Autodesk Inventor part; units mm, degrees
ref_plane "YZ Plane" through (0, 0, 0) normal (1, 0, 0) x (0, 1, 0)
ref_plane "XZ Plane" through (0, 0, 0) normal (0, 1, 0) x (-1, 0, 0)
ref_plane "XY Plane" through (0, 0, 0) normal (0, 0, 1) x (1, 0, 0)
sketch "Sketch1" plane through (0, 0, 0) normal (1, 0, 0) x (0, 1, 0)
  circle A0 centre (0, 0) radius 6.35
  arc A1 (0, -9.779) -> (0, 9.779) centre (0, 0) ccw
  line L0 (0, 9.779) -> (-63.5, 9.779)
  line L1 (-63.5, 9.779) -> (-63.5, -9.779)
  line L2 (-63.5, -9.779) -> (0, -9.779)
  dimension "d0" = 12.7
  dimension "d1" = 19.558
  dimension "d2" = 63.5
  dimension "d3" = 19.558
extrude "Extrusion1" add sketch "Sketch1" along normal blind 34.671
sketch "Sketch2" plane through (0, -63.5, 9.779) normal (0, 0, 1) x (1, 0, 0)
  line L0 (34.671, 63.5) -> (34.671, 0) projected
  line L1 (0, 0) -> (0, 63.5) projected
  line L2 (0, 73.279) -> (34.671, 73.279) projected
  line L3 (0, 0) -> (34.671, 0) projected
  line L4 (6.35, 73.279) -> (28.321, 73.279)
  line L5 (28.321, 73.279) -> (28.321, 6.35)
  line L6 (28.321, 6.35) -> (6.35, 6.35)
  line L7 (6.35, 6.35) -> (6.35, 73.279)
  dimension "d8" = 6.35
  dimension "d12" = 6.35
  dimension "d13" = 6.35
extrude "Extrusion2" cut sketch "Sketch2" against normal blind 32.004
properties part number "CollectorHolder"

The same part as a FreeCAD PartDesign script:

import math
import FreeCAD as App
import Part
import Sketcher

V = App.Vector
Q = App.Units.Quantity


def add_polygon(sketch, points):
    """Adds a closed chain of lines whose ends are joined by coincident constraints."""
    first, n = sketch.GeometryCount, len(points)
    for a, b in zip(points, points[1:] + points[:1]):
        sketch.addGeometry(Part.LineSegment(App.Vector(*a, 0), App.Vector(*b, 0)), False)
    for i in range(n):
        sketch.addConstraint(Sketcher.Constraint("Coincident", first + i, 2, first + (i + 1) % n, 1))

doc = App.newDocument("Part")
body = doc.addObject("PartDesign::Body", "Body")

sketch1 = body.newObject("Sketcher::SketchObject", "Sketch")
sketch1.AttachmentSupport = (doc.getObject("YZ_Plane"), [""])
sketch1.MapMode = "FlatFace"
sketch1.addGeometry([
    Part.LineSegment(V(-64, -10, 0), V(0, -10, 0)),
    Part.ArcOfCircle(Part.Circle(V(0, 0, 0), V(0, 0, 1), 10), math.radians(-90), math.radians(90)),
    Part.LineSegment(V(0, 10, 0), V(-64, 10, 0)),
    Part.LineSegment(V(-64, 10, 0), V(-64, -10, 0)),
    Part.Circle(V(0, 0, 0), V(0, 0, 1), 6),
], False)
sketch1.addConstraint([
    Sketcher.Constraint("Tangent", 0, 2, 1, 1),
    Sketcher.Constraint("Tangent", 1, 2, 2, 1),
    Sketcher.Constraint("Coincident", 2, 2, 3, 1),
    Sketcher.Constraint("Coincident", 3, 2, 0, 1),
    Sketcher.Constraint("Horizontal", 0),
    Sketcher.Constraint("Horizontal", 2),
    Sketcher.Constraint("Vertical", 3),
    Sketcher.Constraint("Coincident", 1, 3, -1, 1),
    Sketcher.Constraint("Coincident", 4, 3, -1, 1),
    Sketcher.Constraint("Diameter", 4, Q("0.5 in")),
    Sketcher.Constraint("DistanceX", 0, 1, 0, 2, Q("2.5 in")),
    Sketcher.Constraint("Radius", 1, Q("0.385 in")),
])
pad1 = body.newObject("PartDesign::Pad", "Pad")
pad1.Profile = sketch1
pad1.Length = Q("1.365 in")

sketch2 = body.newObject("Sketcher::SketchObject", "Sketch001")
sketch2.AttachmentSupport = (doc.getObject("XY_Plane"), [""])
sketch2.MapMode = "FlatFace"
sketch2.AttachmentOffset = App.Placement(V(0, 0, 0.385 * 25.4), App.Rotation())
add_polygon(sketch2, [(28, 10), (6, 10), (6, -57), (28, -57)])
sketch2.addConstraint([
    Sketcher.Constraint("Horizontal", 0),
    Sketcher.Constraint("Vertical", 1),
    Sketcher.Constraint("Horizontal", 2),
    Sketcher.Constraint("Vertical", 3),
    Sketcher.Constraint("DistanceX", -1, 1, 0, 2, Q("0.25 in")),
    Sketcher.Constraint("DistanceX", 0, 2, 0, 1, Q("0.865 in")),
    Sketcher.Constraint("DistanceY", 1, 2, 1, 1, Q("2.635 in")),
    Sketcher.Constraint("DistanceY", 1, 2, -1, 1, Q("2.25 in")),
])
pocket1 = body.newObject("PartDesign::Pocket", "Pocket")
pocket1.Profile = sketch2
pocket1.Length = Q("1.26 in")

doc.recompute()
